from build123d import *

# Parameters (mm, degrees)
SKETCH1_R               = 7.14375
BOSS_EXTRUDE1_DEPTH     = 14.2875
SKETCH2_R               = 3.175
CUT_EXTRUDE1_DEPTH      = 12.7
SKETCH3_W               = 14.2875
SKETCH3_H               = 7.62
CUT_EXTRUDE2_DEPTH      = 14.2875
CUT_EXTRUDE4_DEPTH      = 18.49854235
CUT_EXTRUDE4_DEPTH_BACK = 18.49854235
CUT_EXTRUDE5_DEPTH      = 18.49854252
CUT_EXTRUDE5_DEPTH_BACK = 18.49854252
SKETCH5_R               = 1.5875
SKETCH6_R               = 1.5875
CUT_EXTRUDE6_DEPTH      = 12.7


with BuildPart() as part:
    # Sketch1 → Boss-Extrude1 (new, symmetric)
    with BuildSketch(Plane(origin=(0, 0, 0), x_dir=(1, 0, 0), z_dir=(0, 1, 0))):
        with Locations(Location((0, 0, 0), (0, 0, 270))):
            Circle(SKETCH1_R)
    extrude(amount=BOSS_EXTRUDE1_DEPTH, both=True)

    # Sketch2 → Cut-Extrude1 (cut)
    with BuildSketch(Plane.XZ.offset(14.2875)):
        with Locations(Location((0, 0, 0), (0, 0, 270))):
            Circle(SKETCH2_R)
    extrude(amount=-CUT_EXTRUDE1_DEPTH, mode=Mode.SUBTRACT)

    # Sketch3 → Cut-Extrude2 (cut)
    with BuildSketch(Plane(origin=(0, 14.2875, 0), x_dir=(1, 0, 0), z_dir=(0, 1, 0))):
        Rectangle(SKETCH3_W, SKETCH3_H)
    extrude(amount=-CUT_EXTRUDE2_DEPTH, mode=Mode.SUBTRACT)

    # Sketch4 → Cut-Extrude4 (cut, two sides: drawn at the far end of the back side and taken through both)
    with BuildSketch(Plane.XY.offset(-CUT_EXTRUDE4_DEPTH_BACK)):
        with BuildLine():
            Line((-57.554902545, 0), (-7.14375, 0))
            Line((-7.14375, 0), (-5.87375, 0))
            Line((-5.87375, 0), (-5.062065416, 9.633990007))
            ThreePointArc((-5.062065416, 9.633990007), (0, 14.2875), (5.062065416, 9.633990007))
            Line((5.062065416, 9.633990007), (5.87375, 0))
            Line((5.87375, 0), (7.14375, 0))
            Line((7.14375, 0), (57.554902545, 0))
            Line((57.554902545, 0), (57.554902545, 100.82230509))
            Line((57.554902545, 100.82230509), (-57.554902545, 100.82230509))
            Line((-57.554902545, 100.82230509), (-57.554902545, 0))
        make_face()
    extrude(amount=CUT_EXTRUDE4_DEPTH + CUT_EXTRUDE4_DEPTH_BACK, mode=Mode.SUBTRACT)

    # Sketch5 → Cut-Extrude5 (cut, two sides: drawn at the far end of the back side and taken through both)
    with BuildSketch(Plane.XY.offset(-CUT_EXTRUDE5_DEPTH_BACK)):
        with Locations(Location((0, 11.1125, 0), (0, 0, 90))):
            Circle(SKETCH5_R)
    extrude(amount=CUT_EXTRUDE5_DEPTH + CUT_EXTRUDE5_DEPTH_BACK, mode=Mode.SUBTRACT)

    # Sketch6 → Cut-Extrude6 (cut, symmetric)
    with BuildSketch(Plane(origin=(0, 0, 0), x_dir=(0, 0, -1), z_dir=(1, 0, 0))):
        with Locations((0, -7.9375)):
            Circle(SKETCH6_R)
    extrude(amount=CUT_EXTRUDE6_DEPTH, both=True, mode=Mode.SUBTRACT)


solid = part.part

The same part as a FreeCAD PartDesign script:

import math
import FreeCAD as App
import Part
import Sketcher

V = App.Vector
Q = App.Units.Quantity


def add_polygon(sketch, points):
    """Adds a closed chain of lines whose ends are joined by coincident constraints."""
    first, n = sketch.GeometryCount, len(points)
    for a, b in zip(points, points[1:] + points[:1]):
        sketch.addGeometry(Part.LineSegment(App.Vector(*a, 0), App.Vector(*b, 0)), False)
    for i in range(n):
        sketch.addConstraint(Sketcher.Constraint("Coincident", first + i, 2, first + (i + 1) % n, 1))

doc = App.newDocument("Part")
params = doc.addObject("Spreadsheet::Sheet", "Params")
for row, (alias, value) in enumerate([
    ("sketch1_diameter", "0.5625 in"),
    ("pad1_length", "1.125 in"),
    ("sketch2_diameter", "0.25 in"),
    ("pocket1_length", "0.5 in"),
    ("sketch3_height", "0.3 in"),
    ("sketch3_width", "0.5625 in"),
    ("pocket2_length", "0.5625 in"),
    ("sketch4_radius", "0.2 in"),
    ("sketch5_diameter", "0.125 in"),
    ("sketch6_diameter", "0.125 in"),
    ("pocket5_length", "1 in"),
], start=1):
    params.set(f"A{row}", alias)
    params.set(f"B{row}", "=" + value)
    params.setAlias(f"B{row}", alias)

body = doc.addObject("PartDesign::Body", "Body")

# Sketch on XZ plane
sketch1 = body.newObject("Sketcher::SketchObject", "Sketch")
sketch1.AttachmentSupport = (doc.getObject("XZ_Plane"), [""])
sketch1.MapMode = "FlatFace"
sketch1.addGeometry(Part.Circle(V(0, 0, 0), V(0, 0, 1), 7), False)
sketch1.addConstraint([
    Sketcher.Constraint("Coincident", 0, 3, -1, 1),
    Sketcher.Constraint("Diameter", 0, Q("0.5625 in")),
])
sketch1.setExpression("Constraints[1]", "Params.sketch1_diameter")
pad1 = body.newObject("PartDesign::Pad", "Pad")
pad1.Profile = sketch1
pad1.setExpression("Length", "Params.pad1_length")
pad1.Midplane = True

# Sketch on XZ plane
sketch2 = body.newObject("Sketcher::SketchObject", "Sketch001")
sketch2.AttachmentSupport = (doc.getObject("XZ_Plane"), [""])
sketch2.MapMode = "FlatFace"
sketch2.AttachmentOffset = App.Placement(V(0, 0, 0.5625 * 25.4), App.Rotation())
sketch2.addGeometry(Part.Circle(V(0, 0, 0), V(0, 0, 1), 3.2), False)
sketch2.addConstraint([
    Sketcher.Constraint("Coincident", 0, 3, -1, 1),
    Sketcher.Constraint("Diameter", 0, Q("0.25 in")),
])
sketch2.setExpression("Constraints[1]", "Params.sketch2_diameter")
pocket1 = body.newObject("PartDesign::Pocket", "Pocket")
pocket1.Profile = sketch2
pocket1.setExpression("Length", "Params.pocket1_length")

# Sketch on XZ plane
sketch3 = body.newObject("Sketcher::SketchObject", "Sketch002")
sketch3.AttachmentSupport = (doc.getObject("XZ_Plane"), [""])
sketch3.MapMode = "FlatFace"
sketch3.AttachmentOffset = App.Placement(V(0, 0, -0.5625 * 25.4), App.Rotation())
add_polygon(sketch3, [(-7, -4), (-7, 4), (7, 4), (7, -4)])  # lines 0-3
sketch3.addConstraint([
    Sketcher.Constraint("Vertical", 0),
    Sketcher.Constraint("Horizontal", 1),
    Sketcher.Constraint("Vertical", 2),
    Sketcher.Constraint("Horizontal", 3),
    Sketcher.Constraint("Symmetric", 0, 2, 2, 2, -1, 1),
    Sketcher.Constraint("DistanceY", 0, 1, 0, 2, Q("0.3 in")),
    Sketcher.Constraint("DistanceX", 1, 1, 1, 2, Q("0.5625 in")),
])
sketch3.setExpression("Constraints[9]", "Params.sketch3_height")
sketch3.setExpression("Constraints[10]", "Params.sketch3_width")
pocket2 = body.newObject("PartDesign::Pocket", "Pocket001")
pocket2.Profile = sketch3
pocket2.setExpression("Length", "Params.pocket2_length")
pocket2.Reversed = True

# Sketch on XY plane
sketch4 = body.newObject("Sketcher::SketchObject", "Sketch003")
sketch4.AttachmentSupport = (doc.getObject("XY_Plane"), [""])
sketch4.MapMode = "FlatFace"
sketch4.addGeometry([
    Part.LineSegment(V(-58, 0, 0), V(-6, 0, 0)),  # 0
    Part.LineSegment(V(-6, 0, 0), V(-5, 10, 0)),  # 1
    Part.ArcOfCircle(Part.Circle(V(0, 9, 0), V(0, 0, 1), 5), math.radians(5), math.radians(175)),  # 2
    Part.LineSegment(V(5, 10, 0), V(6, 0, 0)),  # 3
    Part.LineSegment(V(6, 0, 0), V(58, 0, 0)),  # 4
    Part.LineSegment(V(58, 0, 0), V(58, 101, 0)),  # 5
    Part.LineSegment(V(58, 101, 0), V(-58, 101, 0)),  # 6
    Part.LineSegment(V(-58, 101, 0), V(-58, 0, 0)),  # 7
], False)
sketch4.addConstraint([
    Sketcher.Constraint("Coincident", 0, 2, 1, 1),
    Sketcher.Constraint("Tangent", 1, 2, 2, 2),
    Sketcher.Constraint("Tangent", 2, 1, 3, 1),
    Sketcher.Constraint("Coincident", 3, 2, 4, 1),
    Sketcher.Constraint("Coincident", 4, 2, 5, 1),
    Sketcher.Constraint("Coincident", 5, 2, 6, 1),
    Sketcher.Constraint("Coincident", 6, 2, 7, 1),
    Sketcher.Constraint("Coincident", 7, 2, 0, 1),
    Sketcher.Constraint("Horizontal", 0),
    Sketcher.Constraint("Horizontal", 4),
    Sketcher.Constraint("Vertical", 5),
    Sketcher.Constraint("Horizontal", 6),
    Sketcher.Constraint("Vertical", 7),
    Sketcher.Constraint("Symmetric", 0, 2, 3, 2, -1, 1),
    Sketcher.Constraint("Symmetric", 1, 2, 2, 1, -2),
    Sketcher.Constraint("Equal", 0, 4),
    Sketcher.Constraint("Radius", 2, Q("0.2 in")),
    Sketcher.Constraint("DistanceY", -1, 1, 2, 3, Q("0.3625 in")),
    Sketcher.Constraint("DistanceX", 0, 2, 3, 2, Q("0.4625 in")),
    Sketcher.Constraint("DistanceX", 0, 1, 0, 2, 51.681153),
    Sketcher.Constraint("DistanceY", 5, 1, 5, 2, 100.822305),
])
sketch4.setExpression("Constraints[16]", "Params.sketch4_radius")
pocket3 = body.newObject("PartDesign::Pocket", "Pocket002")
pocket3.Profile = sketch4
pocket3.Type = "ThroughAll"
pocket3.Midplane = True

# Sketch on XY plane
sketch5 = body.newObject("Sketcher::SketchObject", "Sketch004")
sketch5.AttachmentSupport = (doc.getObject("XY_Plane"), [""])
sketch5.MapMode = "FlatFace"
sketch5.addGeometry(Part.Circle(V(0, 11.1, 0), V(0, 0, 1), 1.6), False)
sketch5.addConstraint([
    Sketcher.Constraint("PointOnObject", 0, 3, -2),
    Sketcher.Constraint("Diameter", 0, Q("0.125 in")),
    Sketcher.Constraint("DistanceY", -1, 1, 0, 3, Q("0.4375 in")),
])
sketch5.setExpression("Constraints[1]", "Params.sketch5_diameter")
pocket4 = body.newObject("PartDesign::Pocket", "Pocket003")
pocket4.Profile = sketch5
pocket4.Type = "ThroughAll"
pocket4.Midplane = True

# Sketch on YZ plane
sketch6 = body.newObject("Sketcher::SketchObject", "Sketch005")
sketch6.AttachmentSupport = (doc.getObject("YZ_Plane"), [""])
sketch6.MapMode = "FlatFace"
sketch6.addGeometry(Part.Circle(V(-7.9, 0, 0), V(0, 0, 1), 1.6), False)
sketch6.addConstraint([
    Sketcher.Constraint("PointOnObject", 0, 3, -1),
    Sketcher.Constraint("Diameter", 0, Q("0.125 in")),
    Sketcher.Constraint("DistanceX", 0, 3, -1, 1, Q("0.3125 in")),
])
sketch6.setExpression("Constraints[1]", "Params.sketch6_diameter")
pocket5 = body.newObject("PartDesign::Pocket", "Pocket004")
pocket5.Profile = sketch6
pocket5.setExpression("Length", "Params.pocket5_length")
pocket5.Midplane = True

doc.recompute()
